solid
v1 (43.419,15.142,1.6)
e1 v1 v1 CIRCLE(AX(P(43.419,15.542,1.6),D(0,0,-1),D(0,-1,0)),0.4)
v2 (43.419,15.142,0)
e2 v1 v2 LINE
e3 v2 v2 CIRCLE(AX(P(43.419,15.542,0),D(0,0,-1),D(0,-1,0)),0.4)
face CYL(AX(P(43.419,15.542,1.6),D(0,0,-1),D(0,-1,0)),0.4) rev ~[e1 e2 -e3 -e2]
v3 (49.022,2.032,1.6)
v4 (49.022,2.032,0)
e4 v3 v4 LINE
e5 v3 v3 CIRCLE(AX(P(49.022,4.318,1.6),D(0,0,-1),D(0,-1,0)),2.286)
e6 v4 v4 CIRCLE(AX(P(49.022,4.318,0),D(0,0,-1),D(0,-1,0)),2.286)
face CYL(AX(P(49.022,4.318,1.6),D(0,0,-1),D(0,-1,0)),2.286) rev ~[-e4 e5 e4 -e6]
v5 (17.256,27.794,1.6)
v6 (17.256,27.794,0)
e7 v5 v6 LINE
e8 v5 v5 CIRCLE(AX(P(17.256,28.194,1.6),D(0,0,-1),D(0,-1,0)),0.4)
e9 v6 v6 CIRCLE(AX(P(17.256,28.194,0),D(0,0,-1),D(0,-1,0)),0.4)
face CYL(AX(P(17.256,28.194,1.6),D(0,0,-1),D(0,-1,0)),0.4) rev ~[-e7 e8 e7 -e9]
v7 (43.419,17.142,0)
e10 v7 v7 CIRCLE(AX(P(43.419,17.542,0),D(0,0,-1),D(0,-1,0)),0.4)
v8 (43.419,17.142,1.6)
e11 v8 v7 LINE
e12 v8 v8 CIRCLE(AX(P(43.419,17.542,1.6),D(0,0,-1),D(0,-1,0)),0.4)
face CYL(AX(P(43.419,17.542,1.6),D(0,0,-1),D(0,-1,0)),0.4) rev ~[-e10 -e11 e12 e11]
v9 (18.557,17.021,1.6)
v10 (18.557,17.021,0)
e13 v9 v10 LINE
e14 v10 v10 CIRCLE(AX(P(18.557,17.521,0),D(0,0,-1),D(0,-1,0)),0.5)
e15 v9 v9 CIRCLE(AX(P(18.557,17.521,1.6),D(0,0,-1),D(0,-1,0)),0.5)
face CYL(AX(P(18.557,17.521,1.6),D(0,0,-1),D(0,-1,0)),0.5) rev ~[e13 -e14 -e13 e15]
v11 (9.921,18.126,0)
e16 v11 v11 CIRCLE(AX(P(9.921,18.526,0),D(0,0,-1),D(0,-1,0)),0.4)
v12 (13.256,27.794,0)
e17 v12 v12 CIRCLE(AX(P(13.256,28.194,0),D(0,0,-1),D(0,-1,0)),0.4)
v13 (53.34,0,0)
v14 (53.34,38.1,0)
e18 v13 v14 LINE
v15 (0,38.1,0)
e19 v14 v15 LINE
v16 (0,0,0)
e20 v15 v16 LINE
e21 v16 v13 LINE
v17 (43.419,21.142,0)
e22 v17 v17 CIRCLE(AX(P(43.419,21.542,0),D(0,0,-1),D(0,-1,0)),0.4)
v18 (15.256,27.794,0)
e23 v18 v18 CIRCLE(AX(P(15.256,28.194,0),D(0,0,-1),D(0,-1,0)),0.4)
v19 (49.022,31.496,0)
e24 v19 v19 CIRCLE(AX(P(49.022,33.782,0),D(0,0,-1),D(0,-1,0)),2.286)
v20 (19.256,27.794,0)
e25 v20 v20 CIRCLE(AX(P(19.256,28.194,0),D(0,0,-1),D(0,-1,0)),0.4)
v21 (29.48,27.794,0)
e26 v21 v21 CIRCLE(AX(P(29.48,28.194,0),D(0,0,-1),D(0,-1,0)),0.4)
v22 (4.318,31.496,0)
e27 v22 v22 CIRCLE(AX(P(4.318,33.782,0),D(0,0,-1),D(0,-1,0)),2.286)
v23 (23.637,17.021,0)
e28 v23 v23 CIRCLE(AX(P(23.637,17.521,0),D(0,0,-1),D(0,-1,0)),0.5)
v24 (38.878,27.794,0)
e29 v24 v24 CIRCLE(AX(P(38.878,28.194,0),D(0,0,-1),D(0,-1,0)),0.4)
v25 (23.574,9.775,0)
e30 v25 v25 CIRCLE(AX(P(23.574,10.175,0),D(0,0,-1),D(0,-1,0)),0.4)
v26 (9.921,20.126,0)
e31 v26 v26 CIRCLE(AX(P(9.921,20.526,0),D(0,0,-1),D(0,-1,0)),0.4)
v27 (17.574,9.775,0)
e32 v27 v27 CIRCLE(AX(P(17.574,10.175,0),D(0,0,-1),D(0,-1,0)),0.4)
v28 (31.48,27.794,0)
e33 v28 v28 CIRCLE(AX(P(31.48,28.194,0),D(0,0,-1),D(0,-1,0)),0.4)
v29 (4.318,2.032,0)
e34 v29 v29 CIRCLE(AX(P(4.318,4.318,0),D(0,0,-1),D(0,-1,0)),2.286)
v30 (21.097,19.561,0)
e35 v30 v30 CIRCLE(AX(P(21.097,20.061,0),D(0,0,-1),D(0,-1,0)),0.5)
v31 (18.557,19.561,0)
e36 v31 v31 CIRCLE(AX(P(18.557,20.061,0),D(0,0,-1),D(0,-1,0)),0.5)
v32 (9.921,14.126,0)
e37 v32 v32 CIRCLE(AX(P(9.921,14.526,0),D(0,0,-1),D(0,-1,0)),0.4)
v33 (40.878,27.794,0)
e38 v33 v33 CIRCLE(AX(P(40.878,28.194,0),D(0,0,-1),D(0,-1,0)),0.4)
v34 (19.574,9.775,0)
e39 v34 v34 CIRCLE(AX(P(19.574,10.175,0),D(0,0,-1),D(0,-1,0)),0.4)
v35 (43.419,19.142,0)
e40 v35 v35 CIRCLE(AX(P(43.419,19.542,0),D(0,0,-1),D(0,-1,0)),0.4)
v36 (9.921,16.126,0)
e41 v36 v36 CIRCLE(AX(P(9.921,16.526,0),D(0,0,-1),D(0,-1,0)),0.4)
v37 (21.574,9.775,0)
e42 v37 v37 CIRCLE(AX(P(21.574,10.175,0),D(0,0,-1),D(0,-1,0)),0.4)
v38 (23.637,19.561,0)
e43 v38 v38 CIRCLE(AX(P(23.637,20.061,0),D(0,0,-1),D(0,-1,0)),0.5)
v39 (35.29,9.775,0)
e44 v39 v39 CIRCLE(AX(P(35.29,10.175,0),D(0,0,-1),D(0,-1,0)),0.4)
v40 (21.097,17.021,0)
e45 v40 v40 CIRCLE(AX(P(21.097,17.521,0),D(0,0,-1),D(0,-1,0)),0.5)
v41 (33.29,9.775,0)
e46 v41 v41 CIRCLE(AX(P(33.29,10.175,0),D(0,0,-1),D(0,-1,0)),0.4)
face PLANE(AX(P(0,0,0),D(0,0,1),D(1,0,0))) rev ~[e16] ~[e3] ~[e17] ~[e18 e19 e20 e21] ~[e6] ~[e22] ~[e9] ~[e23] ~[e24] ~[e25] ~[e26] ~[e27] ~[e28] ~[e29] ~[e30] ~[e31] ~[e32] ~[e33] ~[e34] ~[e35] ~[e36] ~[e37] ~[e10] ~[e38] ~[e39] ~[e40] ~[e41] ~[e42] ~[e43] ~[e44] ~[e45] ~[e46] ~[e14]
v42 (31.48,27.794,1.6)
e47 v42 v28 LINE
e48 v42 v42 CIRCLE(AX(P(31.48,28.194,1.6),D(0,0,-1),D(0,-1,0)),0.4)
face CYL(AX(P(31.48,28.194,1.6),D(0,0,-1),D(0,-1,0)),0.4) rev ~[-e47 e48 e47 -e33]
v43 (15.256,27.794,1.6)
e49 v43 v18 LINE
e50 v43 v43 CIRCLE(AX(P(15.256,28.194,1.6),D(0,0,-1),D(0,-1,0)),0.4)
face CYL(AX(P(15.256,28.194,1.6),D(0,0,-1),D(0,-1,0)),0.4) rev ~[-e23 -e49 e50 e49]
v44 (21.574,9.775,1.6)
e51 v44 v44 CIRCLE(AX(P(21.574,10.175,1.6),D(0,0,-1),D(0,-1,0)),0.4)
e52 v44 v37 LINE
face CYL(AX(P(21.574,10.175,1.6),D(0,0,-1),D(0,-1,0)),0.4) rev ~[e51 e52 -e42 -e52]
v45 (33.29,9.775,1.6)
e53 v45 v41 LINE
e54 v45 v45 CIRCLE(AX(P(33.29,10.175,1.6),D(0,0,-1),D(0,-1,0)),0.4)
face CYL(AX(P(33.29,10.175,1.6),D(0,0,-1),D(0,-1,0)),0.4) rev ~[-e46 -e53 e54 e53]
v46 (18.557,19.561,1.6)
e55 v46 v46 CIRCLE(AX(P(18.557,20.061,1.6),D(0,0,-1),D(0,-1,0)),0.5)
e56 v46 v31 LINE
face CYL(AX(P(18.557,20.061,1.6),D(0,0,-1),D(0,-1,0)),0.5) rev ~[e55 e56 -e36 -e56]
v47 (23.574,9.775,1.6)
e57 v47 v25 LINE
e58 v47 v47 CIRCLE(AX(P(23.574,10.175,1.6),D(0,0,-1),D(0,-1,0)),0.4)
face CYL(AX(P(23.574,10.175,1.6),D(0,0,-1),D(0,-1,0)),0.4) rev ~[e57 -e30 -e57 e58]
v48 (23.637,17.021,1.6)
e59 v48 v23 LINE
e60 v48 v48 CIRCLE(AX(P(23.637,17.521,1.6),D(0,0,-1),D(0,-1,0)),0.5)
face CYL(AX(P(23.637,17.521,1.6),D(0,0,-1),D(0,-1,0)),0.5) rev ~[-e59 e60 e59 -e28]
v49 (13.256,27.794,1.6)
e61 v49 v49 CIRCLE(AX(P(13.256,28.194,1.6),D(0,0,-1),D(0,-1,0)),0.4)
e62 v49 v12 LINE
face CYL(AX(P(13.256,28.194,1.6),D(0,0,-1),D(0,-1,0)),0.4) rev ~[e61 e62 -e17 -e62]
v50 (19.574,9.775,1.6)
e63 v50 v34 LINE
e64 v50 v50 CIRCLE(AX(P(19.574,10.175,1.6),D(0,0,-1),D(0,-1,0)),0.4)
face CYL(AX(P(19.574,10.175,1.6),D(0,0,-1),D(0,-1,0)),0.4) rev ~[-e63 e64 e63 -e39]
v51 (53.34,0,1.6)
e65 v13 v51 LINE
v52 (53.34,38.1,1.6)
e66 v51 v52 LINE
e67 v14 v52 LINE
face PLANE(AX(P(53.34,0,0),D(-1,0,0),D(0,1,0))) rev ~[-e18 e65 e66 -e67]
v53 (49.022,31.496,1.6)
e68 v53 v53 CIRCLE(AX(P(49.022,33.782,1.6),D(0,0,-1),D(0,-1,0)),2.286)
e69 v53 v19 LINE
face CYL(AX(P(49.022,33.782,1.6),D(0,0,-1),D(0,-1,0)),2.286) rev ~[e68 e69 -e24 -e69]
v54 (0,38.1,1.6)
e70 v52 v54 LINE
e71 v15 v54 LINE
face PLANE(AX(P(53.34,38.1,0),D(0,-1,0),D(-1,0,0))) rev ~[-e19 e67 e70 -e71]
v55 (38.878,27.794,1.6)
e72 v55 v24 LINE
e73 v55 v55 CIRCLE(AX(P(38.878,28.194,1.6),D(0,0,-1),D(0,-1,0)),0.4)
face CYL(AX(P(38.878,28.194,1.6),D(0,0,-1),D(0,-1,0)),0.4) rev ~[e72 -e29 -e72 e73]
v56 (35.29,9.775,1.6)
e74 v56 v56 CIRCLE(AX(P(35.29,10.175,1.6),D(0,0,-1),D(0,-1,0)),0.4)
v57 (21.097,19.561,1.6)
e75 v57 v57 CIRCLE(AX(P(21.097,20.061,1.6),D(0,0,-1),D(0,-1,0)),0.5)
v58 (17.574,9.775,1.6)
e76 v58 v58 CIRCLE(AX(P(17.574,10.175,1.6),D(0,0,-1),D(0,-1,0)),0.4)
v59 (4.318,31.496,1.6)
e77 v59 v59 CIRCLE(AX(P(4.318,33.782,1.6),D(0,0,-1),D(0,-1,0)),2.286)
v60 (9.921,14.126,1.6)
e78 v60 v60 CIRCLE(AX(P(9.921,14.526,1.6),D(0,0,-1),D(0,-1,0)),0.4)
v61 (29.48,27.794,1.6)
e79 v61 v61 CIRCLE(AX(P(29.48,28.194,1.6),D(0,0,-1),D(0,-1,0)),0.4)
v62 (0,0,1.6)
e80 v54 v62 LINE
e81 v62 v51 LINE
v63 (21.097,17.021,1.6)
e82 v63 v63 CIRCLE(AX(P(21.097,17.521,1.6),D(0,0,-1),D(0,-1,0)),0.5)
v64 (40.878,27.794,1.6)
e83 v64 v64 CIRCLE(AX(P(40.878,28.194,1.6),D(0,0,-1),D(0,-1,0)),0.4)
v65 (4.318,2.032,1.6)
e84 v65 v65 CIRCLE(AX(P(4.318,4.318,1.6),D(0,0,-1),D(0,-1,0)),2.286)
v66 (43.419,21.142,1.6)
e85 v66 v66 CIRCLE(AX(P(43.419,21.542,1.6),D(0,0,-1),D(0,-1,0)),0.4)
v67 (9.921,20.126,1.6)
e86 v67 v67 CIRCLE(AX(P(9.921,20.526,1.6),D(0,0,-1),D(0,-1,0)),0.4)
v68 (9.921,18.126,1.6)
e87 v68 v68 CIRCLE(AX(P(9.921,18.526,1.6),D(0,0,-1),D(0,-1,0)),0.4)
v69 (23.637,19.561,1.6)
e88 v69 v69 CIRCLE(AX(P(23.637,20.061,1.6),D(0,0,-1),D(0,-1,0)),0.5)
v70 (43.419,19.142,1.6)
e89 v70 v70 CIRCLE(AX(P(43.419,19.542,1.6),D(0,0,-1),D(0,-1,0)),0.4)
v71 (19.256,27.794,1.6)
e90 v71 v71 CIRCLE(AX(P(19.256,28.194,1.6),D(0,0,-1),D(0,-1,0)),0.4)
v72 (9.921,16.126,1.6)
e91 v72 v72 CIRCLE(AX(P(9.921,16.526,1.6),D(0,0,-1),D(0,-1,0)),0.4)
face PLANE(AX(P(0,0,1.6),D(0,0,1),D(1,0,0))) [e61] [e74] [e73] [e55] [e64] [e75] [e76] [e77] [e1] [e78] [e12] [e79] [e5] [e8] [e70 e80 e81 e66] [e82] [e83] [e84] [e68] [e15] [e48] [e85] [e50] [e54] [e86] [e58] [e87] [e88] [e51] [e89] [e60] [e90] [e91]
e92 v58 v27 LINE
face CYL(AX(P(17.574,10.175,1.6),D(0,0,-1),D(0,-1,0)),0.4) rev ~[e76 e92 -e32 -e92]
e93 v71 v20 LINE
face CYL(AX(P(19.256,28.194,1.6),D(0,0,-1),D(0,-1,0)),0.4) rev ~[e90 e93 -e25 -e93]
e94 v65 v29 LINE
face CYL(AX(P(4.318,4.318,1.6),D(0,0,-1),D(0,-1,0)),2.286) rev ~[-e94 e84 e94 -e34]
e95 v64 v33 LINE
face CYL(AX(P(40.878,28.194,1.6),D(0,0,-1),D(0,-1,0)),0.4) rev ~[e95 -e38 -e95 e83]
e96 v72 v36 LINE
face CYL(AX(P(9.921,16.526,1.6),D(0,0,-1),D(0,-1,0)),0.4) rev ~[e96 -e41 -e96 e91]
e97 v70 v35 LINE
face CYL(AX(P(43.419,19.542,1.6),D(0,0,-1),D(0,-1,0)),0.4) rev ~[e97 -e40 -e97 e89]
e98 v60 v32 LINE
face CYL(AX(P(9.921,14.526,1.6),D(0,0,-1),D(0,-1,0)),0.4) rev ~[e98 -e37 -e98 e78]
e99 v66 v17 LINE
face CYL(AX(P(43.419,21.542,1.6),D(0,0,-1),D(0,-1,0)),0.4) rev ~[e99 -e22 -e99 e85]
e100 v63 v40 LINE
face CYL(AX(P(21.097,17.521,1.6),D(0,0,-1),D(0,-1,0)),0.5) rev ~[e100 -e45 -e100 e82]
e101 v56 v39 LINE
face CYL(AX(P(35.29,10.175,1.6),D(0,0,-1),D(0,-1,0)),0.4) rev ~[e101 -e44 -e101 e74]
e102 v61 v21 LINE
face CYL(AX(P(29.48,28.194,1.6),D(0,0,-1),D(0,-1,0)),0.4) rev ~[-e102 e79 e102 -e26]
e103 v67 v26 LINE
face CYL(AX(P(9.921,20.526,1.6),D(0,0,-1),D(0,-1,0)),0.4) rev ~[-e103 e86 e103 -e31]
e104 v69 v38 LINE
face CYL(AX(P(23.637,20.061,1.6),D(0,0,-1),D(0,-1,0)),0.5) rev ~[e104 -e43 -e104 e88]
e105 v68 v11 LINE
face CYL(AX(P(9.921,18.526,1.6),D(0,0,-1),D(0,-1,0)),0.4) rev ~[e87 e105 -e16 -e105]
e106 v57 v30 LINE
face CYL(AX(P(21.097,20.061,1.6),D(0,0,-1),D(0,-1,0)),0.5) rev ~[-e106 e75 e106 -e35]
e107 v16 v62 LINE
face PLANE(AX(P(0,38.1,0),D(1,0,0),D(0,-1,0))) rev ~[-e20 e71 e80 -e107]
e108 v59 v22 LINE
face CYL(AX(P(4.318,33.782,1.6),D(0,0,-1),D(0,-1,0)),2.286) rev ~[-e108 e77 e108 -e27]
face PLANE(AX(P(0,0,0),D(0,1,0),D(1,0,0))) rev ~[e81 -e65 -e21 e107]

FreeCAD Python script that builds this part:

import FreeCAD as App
import Part
import Sketcher

V = App.Vector
Q = App.Units.Quantity

doc = App.newDocument("Part")
params = doc.addObject("Spreadsheet::Sheet", "Params")
for row, (alias, value) in enumerate([
    ("sketch1_width", "2.1 in"),
    ("sketch1_height", "1.5 in"),
    ("pad1_length", "0.0629921 in"),
    ("sketch2_diameter", "0.18 in"),
    ("hole_diameter", "0.18 in"),
    ("hole2_diameter", "0.0314961 in"),
    ("hole3_diameter", "1 mm"),
], start=1):
    params.set(f"A{row}", alias)
    params.set(f"B{row}", "=" + value)
    params.setAlias(f"B{row}", alias)

body = doc.addObject("PartDesign::Body", "Body")

# Sketch on XY plane
sketch1 = body.newObject("Sketcher::SketchObject", "Sketch")
sketch1.AttachmentSupport = (doc.getObject("XY_Plane"), [""])
sketch1.MapMode = "FlatFace"
sketch1.addGeometry([
    Part.LineSegment(V(0, 38, 0), V(0, 0, 0)),
    Part.LineSegment(V(0, 0, 0), V(53, 0, 0)),
    Part.LineSegment(V(53, 0, 0), V(53, 38, 0)),
    Part.LineSegment(V(53, 38, 0), V(0, 38, 0)),
], False)
sketch1.addConstraint([
    Sketcher.Constraint("Coincident", 0, 2, 1, 1),
    Sketcher.Constraint("Coincident", 1, 2, 2, 1),
    Sketcher.Constraint("Coincident", 2, 2, 3, 1),
    Sketcher.Constraint("Coincident", 3, 2, 0, 1),
    Sketcher.Constraint("Vertical", 0),
    Sketcher.Constraint("Horizontal", 1),
    Sketcher.Constraint("Vertical", 2),
    Sketcher.Constraint("Horizontal", 3),
    Sketcher.Constraint("Coincident", 0, 2, -1, 1),
    Sketcher.Constraint("DistanceX", 1, 1, 1, 2, Q("2.1 in")),
    Sketcher.Constraint("DistanceY", 0, 2, 0, 1, Q("1.5 in")),
])
sketch1.setExpression("Constraints[9]", "Params.sketch1_width")
sketch1.setExpression("Constraints[10]", "Params.sketch1_height")
pad1 = body.newObject("PartDesign::Pad", "Pad")
pad1.Profile = sketch1
pad1.setExpression("Length", "Params.pad1_length")

# Sketch on XY plane
sketch2 = body.newObject("Sketcher::SketchObject", "Sketch001")
sketch2.AttachmentSupport = (doc.getObject("XY_Plane"), [""])
sketch2.MapMode = "FlatFace"
sketch2.AttachmentOffset = App.Placement(V(0, 0, 0.0629921 * 25.4), App.Rotation())
sketch2.addGeometry([
    Part.Circle(V(4.3, 33.8, 0), V(0, 0, 1), 2.3),
    Part.Circle(V(49, 33.8, 0), V(0, 0, 1), 2.3),
    Part.Circle(V(49, 4.3, 0), V(0, 0, 1), 2.3),
    Part.Circle(V(4.3, 4.3, 0), V(0, 0, 1), 2.3),
], False)
sketch2.addConstraint([
    Sketcher.Constraint("Equal", 0, 1),
    Sketcher.Constraint("Equal", 1, 2),
    Sketcher.Constraint("Equal", 2, 3),
    Sketcher.Constraint("Horizontal", 0, 3, 1, 3),
    Sketcher.Constraint("Horizontal", 2, 3, 3, 3),
    Sketcher.Constraint("Vertical", 1, 3, 2, 3),
    Sketcher.Constraint("Vertical", 0, 3, 3, 3),
    Sketcher.Constraint("Diameter", 0, Q("0.18 in")),
    Sketcher.Constraint("DistanceX", -1, 1, 0, 3, Q("0.17 in")),
    Sketcher.Constraint("DistanceY", -1, 1, 0, 3, Q("1.33 in")),
    Sketcher.Constraint("DistanceX", -1, 1, 1, 3, Q("1.93 in")),
    Sketcher.Constraint("DistanceY", -1, 1, 2, 3, Q("0.17 in")),
])
sketch2.setExpression("Constraints[7]", "Params.sketch2_diameter")
doc.recompute()
hole = body.newObject("PartDesign::Hole", "Hole")
hole.Profile = sketch2
hole.ThreadType = "None"
hole.setExpression("Diameter", "Params.hole_diameter")
hole.DepthType = "ThroughAll"

# Sketch on XY plane
sketch3 = body.newObject("Sketcher::SketchObject", "Sketch002")
sketch3.AttachmentSupport = (doc.getObject("XY_Plane"), [""])
sketch3.MapMode = "FlatFace"
sketch3.AttachmentOffset = App.Placement(V(0, 0, 0.0629921 * 25.4), App.Rotation())
sketch3.addGeometry([
    Part.Circle(V(19.26, 28.19, 0), V(0, 0, 1), 0.4),  # 0
    Part.Circle(V(31.48, 28.19, 0), V(0, 0, 1), 0.4),  # 1
    Part.Circle(V(40.88, 28.19, 0), V(0, 0, 1), 0.4),  # 2
    Part.Circle(V(9.92, 20.53, 0), V(0, 0, 1), 0.4),  # 3
    Part.Circle(V(43.42, 15.54, 0), V(0, 0, 1), 0.4),  # 4
    Part.Circle(V(17.57, 10.18, 0), V(0, 0, 1), 0.4),  # 5
    Part.Circle(V(33.29, 10.18, 0), V(0, 0, 1), 0.4),  # 6
    Part.Circle(V(17.26, 28.19, 0), V(0, 0, 1), 0.4),  # 7
    Part.Circle(V(15.26, 28.19, 0), V(0, 0, 1), 0.4),  # 8
    Part.Circle(V(13.26, 28.19, 0), V(0, 0, 1), 0.4),  # 9
    Part.Circle(V(38.88, 28.19, 0), V(0, 0, 1), 0.4),  # 10
    Part.Circle(V(29.48, 28.19, 0), V(0, 0, 1), 0.4),  # 11
    Part.Circle(V(9.92, 18.53, 0), V(0, 0, 1), 0.4),  # 12
    Part.Circle(V(9.92, 16.53, 0), V(0, 0, 1), 0.4),  # 13
    Part.Circle(V(9.92, 14.53, 0), V(0, 0, 1), 0.4),  # 14
    Part.Circle(V(19.57, 10.18, 0), V(0, 0, 1), 0.4),  # 15
    Part.Circle(V(21.57, 10.18, 0), V(0, 0, 1), 0.4),  # 16
    Part.Circle(V(23.57, 10.18, 0), V(0, 0, 1), 0.4),  # 17
    Part.Circle(V(35.29, 10.18, 0), V(0, 0, 1), 0.4),  # 18
    Part.Circle(V(43.42, 17.54, 0), V(0, 0, 1), 0.4),  # 19
    Part.Circle(V(43.42, 19.54, 0), V(0, 0, 1), 0.4),  # 20
    Part.Circle(V(43.42, 21.54, 0), V(0, 0, 1), 0.4),  # 21
], False)
sketch3.addConstraint([
    Sketcher.Constraint("Equal", 0, 1),
    Sketcher.Constraint("Equal", 1, 2),
    Sketcher.Constraint("Equal", 2, 3),
    Sketcher.Constraint("Equal", 3, 4),
    Sketcher.Constraint("Equal", 4, 5),
    Sketcher.Constraint("Equal", 5, 6),
    Sketcher.Constraint("Equal", 6, 7),
    Sketcher.Constraint("Equal", 7, 8),
    Sketcher.Constraint("Equal", 8, 9),
    Sketcher.Constraint("Equal", 9, 10),
    Sketcher.Constraint("Equal", 10, 11),
    Sketcher.Constraint("Equal", 11, 12),
    Sketcher.Constraint("Equal", 12, 13),
    Sketcher.Constraint("Equal", 13, 14),
    Sketcher.Constraint("Equal", 14, 15),
    Sketcher.Constraint("Equal", 15, 16),
    Sketcher.Constraint("Equal", 16, 17),
    Sketcher.Constraint("Equal", 17, 18),
    Sketcher.Constraint("Equal", 18, 19),
    Sketcher.Constraint("Equal", 19, 20),
    Sketcher.Constraint("Equal", 20, 21),
    Sketcher.Constraint("Horizontal", 0, 3, 1, 3),
    Sketcher.Constraint("Horizontal", 1, 3, 2, 3),
    Sketcher.Constraint("Horizontal", 5, 3, 6, 3),
    Sketcher.Constraint("Horizontal", 2, 3, 7, 3),
    Sketcher.Constraint("Horizontal", 7, 3, 8, 3),
    Sketcher.Constraint("Horizontal", 8, 3, 9, 3),
    Sketcher.Constraint("Horizontal", 9, 3, 10, 3),
    Sketcher.Constraint("Horizontal", 10, 3, 11, 3),
    Sketcher.Constraint("Horizontal", 6, 3, 15, 3),
    Sketcher.Constraint("Horizontal", 15, 3, 16, 3),
    Sketcher.Constraint("Horizontal", 16, 3, 17, 3),
    Sketcher.Constraint("Horizontal", 17, 3, 18, 3),
    Sketcher.Constraint("Vertical", 3, 3, 12, 3),
    Sketcher.Constraint("Vertical", 12, 3, 13, 3),
    Sketcher.Constraint("Vertical", 13, 3, 14, 3),
    Sketcher.Constraint("Vertical", 4, 3, 19, 3),
    Sketcher.Constraint("Vertical", 19, 3, 20, 3),
    Sketcher.Constraint("Vertical", 20, 3, 21, 3),
    Sketcher.Constraint("Diameter", 0, Q("0.0315 in")),
    Sketcher.Constraint("DistanceY", -1, 1, 0, 3, Q("1.11 in")),
    Sketcher.Constraint("DistanceX", 1, 3, 2, 3, Q("0.37 in")),
    Sketcher.Constraint("DistanceX", 7, 3, 1, 3, Q("0.56 in")),
    Sketcher.Constraint("DistanceX", 6, 3, 10, 3, Q("0.22 in")),
    Sketcher.Constraint("DistanceX", 11, 3, 10, 3, Q("0.37 in")),
    Sketcher.Constraint("DistanceX", 15, 3, 6, 3, Q("0.54 in")),
    Sketcher.Constraint("DistanceX", 16, 3, 18, 3, Q("0.54 in")),
    Sketcher.Constraint("DistanceX", -1, 1, 2, 3, Q("1.6093701 in")),
    Sketcher.Constraint("DistanceX", -1, 1, 0, 3, Q("0.7581 in")),
    Sketcher.Constraint("DistanceX", -1, 1, 3, 3, Q("0.3906 in")),
    Sketcher.Constraint("DistanceY", -1, 1, 3, 3, Q("0.8081 in")),
    Sketcher.Constraint("DistanceX", -1, 1, 4, 3, Q("1.7094 in")),
    Sketcher.Constraint("DistanceY", -1, 1, 4, 3, Q("0.6119 in")),
    Sketcher.Constraint("DistanceX", -1, 1, 5, 3, Q("0.6919 in")),
    Sketcher.Constraint("DistanceY", -1, 1, 5, 3, Q("0.4006 in")),
    Sketcher.Constraint("DistanceX", -1, 1, 9, 3, Q("0.5219 in")),
    Sketcher.Constraint("DistanceY", -1, 1, 14, 3, Q("0.5719 in")),
    Sketcher.Constraint("DistanceX", -1, 1, 17, 3, Q("0.9281 in")),
    Sketcher.Constraint("DistanceY", -1, 1, 21, 3, Q("0.8481 in")),
    Sketcher.Constraint("DistanceX", -1, 1, 6, 3, 33.29),
    Sketcher.Constraint("DistanceX", -1, 1, 8, 3, 15.256),
    Sketcher.Constraint("DistanceY", -1, 1, 12, 3, 18.526),
    Sketcher.Constraint("DistanceY", -1, 1, 13, 3, 16.526),
    Sketcher.Constraint("DistanceX", -1, 1, 16, 3, 21.574),
    Sketcher.Constraint("DistanceY", -1, 1, 19, 3, 17.542),
    Sketcher.Constraint("DistanceY", -1, 1, 20, 3, 19.542),
])
doc.recompute()
hole2 = body.newObject("PartDesign::Hole", "Hole001")
hole2.Profile = sketch3
hole2.ThreadType = "None"
hole2.setExpression("Diameter", "Params.hole2_diameter")
hole2.DepthType = "ThroughAll"

# Sketch on XY plane
sketch4 = body.newObject("Sketcher::SketchObject", "Sketch003")
sketch4.AttachmentSupport = (doc.getObject("XY_Plane"), [""])
sketch4.MapMode = "FlatFace"
sketch4.AttachmentOffset = App.Placement(V(0, 0, 0.0629921 * 25.4), App.Rotation())
sketch4.addGeometry([
    Part.Circle(V(18.6, 17.5, 0), V(0, 0, 1), 0.5),  # 0
    Part.Circle(V(21.1, 17.5, 0), V(0, 0, 1), 0.5),  # 1
    Part.Circle(V(23.6, 17.5, 0), V(0, 0, 1), 0.5),  # 2
    Part.Circle(V(18.6, 20.1, 0), V(0, 0, 1), 0.5),  # 3
    Part.Circle(V(21.1, 20.1, 0), V(0, 0, 1), 0.5),  # 4
    Part.Circle(V(23.6, 20.1, 0), V(0, 0, 1), 0.5),  # 5
], False)
sketch4.addConstraint([
    Sketcher.Constraint("Equal", 0, 1),
    Sketcher.Constraint("Equal", 1, 2),
    Sketcher.Constraint("Equal", 2, 3),
    Sketcher.Constraint("Equal", 3, 4),
    Sketcher.Constraint("Equal", 4, 5),
    Sketcher.Constraint("Horizontal", 0, 3, 1, 3),
    Sketcher.Constraint("Horizontal", 1, 3, 2, 3),
    Sketcher.Constraint("Horizontal", 3, 3, 4, 3),
    Sketcher.Constraint("Horizontal", 4, 3, 5, 3),
    Sketcher.Constraint("Vertical", 0, 3, 3, 3),
    Sketcher.Constraint("Vertical", 1, 3, 4, 3),
    Sketcher.Constraint("Vertical", 2, 3, 5, 3),
    Sketcher.Constraint("DistanceX", 0, 3, 1, 3, Q("0.1 in")),
    Sketcher.Constraint("DistanceX", 1, 3, 2, 3, Q("0.1 in")),
    Sketcher.Constraint("DistanceY", 0, 3, 3, 3, Q("0.1 in")),
    Sketcher.Constraint("Diameter", 0, 1.0),
    Sketcher.Constraint("DistanceX", -1, 1, 0, 3, Q("0.7306 in")),
    Sketcher.Constraint("DistanceY", -1, 1, 0, 3, Q("0.6898 in")),
])
doc.recompute()
hole3 = body.newObject("PartDesign::Hole", "Hole002")
hole3.Profile = sketch4
hole3.ThreadType = "None"
hole3.setExpression("Diameter", "Params.hole3_diameter")
hole3.DepthType = "ThroughAll"

doc.recompute()
